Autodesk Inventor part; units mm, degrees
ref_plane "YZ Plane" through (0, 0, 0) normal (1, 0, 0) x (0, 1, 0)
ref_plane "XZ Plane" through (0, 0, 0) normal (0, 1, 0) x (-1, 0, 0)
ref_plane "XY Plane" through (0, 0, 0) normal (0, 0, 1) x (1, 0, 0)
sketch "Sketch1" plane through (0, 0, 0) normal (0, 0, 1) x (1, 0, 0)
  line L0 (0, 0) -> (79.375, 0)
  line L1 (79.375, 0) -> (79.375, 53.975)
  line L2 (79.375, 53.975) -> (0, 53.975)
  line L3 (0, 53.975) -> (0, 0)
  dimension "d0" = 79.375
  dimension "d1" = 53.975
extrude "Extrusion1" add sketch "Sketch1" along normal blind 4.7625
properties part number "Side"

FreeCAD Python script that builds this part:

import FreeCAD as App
import Part
import Sketcher
Q = App.Units.Quantity

doc = App.newDocument("Part")
body = doc.addObject("PartDesign::Body", "Body")

sketch1 = body.newObject("Sketcher::SketchObject", "Sketch")
sketch1.AttachmentSupport = (doc.getObject("XY_Plane"), [""])
sketch1.MapMode = "FlatFace"
sketch1.addGeometry([
    Part.LineSegment(App.Vector(0, 53.975, 0), App.Vector(0, 0, 0)),
    Part.LineSegment(App.Vector(0, 0, 0), App.Vector(79.375, 0, 0)),
    Part.LineSegment(App.Vector(79.375, 0, 0), App.Vector(79.375, 53.975, 0)),
    Part.LineSegment(App.Vector(79.375, 53.975, 0), App.Vector(0, 53.975, 0)),
], False)
sketch1.addConstraint([
    Sketcher.Constraint("Coincident", 0, 2, 1, 1),
    Sketcher.Constraint("Coincident", 1, 2, 2, 1),
    Sketcher.Constraint("Coincident", 2, 2, 3, 1),
    Sketcher.Constraint("Coincident", 3, 2, 0, 1),
    Sketcher.Constraint("Vertical", 0),
    Sketcher.Constraint("Horizontal", 1),
    Sketcher.Constraint("Vertical", 2),
    Sketcher.Constraint("Horizontal", 3),
    Sketcher.Constraint("Coincident", 0, 2, -1, 1),
    Sketcher.Constraint("DistanceX", 1, 1, 1, 2, Q("3.125 in")),
    Sketcher.Constraint("DistanceY", 0, 2, 0, 1, Q("2.125 in")),
])
pad1 = body.newObject("PartDesign::Pad", "Pad")
pad1.Profile = sketch1
pad1.Length = Q("0.1875 in")

doc.recompute()
